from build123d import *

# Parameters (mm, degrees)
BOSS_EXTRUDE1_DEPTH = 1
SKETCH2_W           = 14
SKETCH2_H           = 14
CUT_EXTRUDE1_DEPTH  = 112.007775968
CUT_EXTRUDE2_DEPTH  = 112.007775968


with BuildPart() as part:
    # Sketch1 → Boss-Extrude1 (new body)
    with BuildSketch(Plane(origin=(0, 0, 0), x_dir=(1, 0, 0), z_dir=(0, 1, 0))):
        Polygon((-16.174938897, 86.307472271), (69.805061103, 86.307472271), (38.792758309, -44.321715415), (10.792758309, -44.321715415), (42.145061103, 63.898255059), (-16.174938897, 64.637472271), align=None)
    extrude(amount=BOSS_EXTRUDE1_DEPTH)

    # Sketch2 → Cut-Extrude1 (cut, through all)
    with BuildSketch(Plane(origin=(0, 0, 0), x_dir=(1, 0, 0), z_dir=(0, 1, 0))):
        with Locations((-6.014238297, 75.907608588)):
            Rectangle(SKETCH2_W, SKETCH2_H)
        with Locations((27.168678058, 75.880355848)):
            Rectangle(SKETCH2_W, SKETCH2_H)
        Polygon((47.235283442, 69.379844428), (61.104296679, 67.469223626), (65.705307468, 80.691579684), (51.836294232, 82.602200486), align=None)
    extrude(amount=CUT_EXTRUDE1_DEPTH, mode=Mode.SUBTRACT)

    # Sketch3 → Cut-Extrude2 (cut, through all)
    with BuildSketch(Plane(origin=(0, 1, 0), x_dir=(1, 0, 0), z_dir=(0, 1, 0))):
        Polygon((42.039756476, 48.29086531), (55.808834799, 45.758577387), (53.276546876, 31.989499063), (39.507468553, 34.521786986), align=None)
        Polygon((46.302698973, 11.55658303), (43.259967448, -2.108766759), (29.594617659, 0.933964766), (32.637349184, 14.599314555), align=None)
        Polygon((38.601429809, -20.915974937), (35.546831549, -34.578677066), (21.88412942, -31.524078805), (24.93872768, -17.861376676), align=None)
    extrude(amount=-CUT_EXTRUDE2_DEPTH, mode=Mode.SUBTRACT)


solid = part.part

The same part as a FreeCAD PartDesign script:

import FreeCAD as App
import Part
import Sketcher


def add_polygon(sketch, points):
    """Adds a closed chain of lines whose ends are joined by coincident constraints."""
    first, n = sketch.GeometryCount, len(points)
    for a, b in zip(points, points[1:] + points[:1]):
        sketch.addGeometry(Part.LineSegment(App.Vector(*a, 0), App.Vector(*b, 0)), False)
    for i in range(n):
        sketch.addConstraint(Sketcher.Constraint("Coincident", first + i, 2, first + (i + 1) % n, 1))

doc = App.newDocument("Part")
body = doc.addObject("PartDesign::Body", "Body")

sketch1 = body.newObject("Sketcher::SketchObject", "Sketch")
sketch1.AttachmentSupport = (doc.getObject("XZ_Plane"), [""])
sketch1.MapMode = "FlatFace"
add_polygon(sketch1, [(70, -86), (-16, -86), (-16, -65), (42, -64), (11, 44), (39, 44)])
sketch1.addConstraint(Sketcher.Constraint("Horizontal", 0))
sketch1.addConstraint(Sketcher.Constraint("Vertical", 1))
sketch1.addConstraint(Sketcher.Constraint("Horizontal", 4))
sketch1.addConstraint(Sketcher.Constraint("DistanceX", 4, 1, 4, 2, 28.0))
sketch1.addConstraint(Sketcher.Constraint("DistanceX", 0, 2, 0, 1, 85.98))
sketch1.addConstraint(Sketcher.Constraint("DistanceY", 1, 1, 1, 2, 21.67))
sketch1.addConstraint(Sketcher.Constraint("Distance", 3, 112.67))
sketch1.addConstraint(Sketcher.Constraint("Distance", 5, 134.26))
sketch1.addConstraint(Sketcher.Constraint("DistanceX", 1, 2, 2, 2, 58.32))
sketch1.addConstraint(Sketcher.Constraint("DistanceX", 0, 2, -1, 1, 16.174939))
sketch1.addConstraint(Sketcher.Constraint("DistanceX", -1, 1, 3, 2, 10.792758))
sketch1.addConstraint(Sketcher.Constraint("DistanceY", 0, 2, -1, 1, 86.307472))
pad1 = body.newObject("PartDesign::Pad", "Pad")
pad1.Profile = sketch1
pad1.Length = 1
pad1.Reversed = True

sketch2 = body.newObject("Sketcher::SketchObject", "Sketch001")
sketch2.AttachmentSupport = (doc.getObject("XZ_Plane"), [""])
sketch2.MapMode = "FlatFace"
add_polygon(sketch2, [(-13, -83), (-13, -69), (1, -69), (1, -83)])
add_polygon(sketch2, [(20, -83), (20, -69), (34, -69), (34, -83)])
add_polygon(sketch2, [(47, -69), (61, -67), (66, -81), (52, -83)])
sketch2.addConstraint(Sketcher.Constraint("Vertical", 0))
sketch2.addConstraint(Sketcher.Constraint("Horizontal", 1))
sketch2.addConstraint(Sketcher.Constraint("Vertical", 2))
sketch2.addConstraint(Sketcher.Constraint("Horizontal", 3))
sketch2.addConstraint(Sketcher.Constraint("Vertical", 4))
sketch2.addConstraint(Sketcher.Constraint("Horizontal", 5))
sketch2.addConstraint(Sketcher.Constraint("Vertical", 6))
sketch2.addConstraint(Sketcher.Constraint("Horizontal", 7))
sketch2.addConstraint(Sketcher.Constraint("Parallel", 8, 10))
sketch2.addConstraint(Sketcher.Constraint("Parallel", 9, 11))
sketch2.addConstraint(Sketcher.Constraint("Equal", 3, 5))
sketch2.addConstraint(Sketcher.Constraint("Equal", 7, 0))
sketch2.addConstraint(Sketcher.Constraint("Equal", 2, 4))
sketch2.addConstraint(Sketcher.Constraint("Equal", 8, 9))
sketch2.addConstraint(Sketcher.Constraint("DistanceX", 1, 1, 1, 2, 14.0))
sketch2.addConstraint(Sketcher.Constraint("Distance", 8, 14.0))
sketch2.addConstraint(Sketcher.Constraint("DistanceY", 10, 2, -1, 1, 82.6022))
sketch2.addConstraint(Sketcher.Constraint("DistanceX", 0, 2, -1, 1, 13.014238))
sketch2.addConstraint(Sketcher.Constraint("DistanceY", 0, 2, -1, 1, 68.907609))
sketch2.addConstraint(Sketcher.Constraint("DistanceX", -1, 1, 4, 2, 20.168678))
sketch2.addConstraint(Sketcher.Constraint("DistanceY", 9, 2, -1, 1, 80.69158))
sketch2.addConstraint(Sketcher.Constraint("DistanceX", 5, 2, 8, 2, 26.935619))
sketch2.addConstraint(Sketcher.Constraint("DistanceX", 8, 2, 9, 2, 4.601011))
sketch2.addConstraint(Sketcher.Constraint("DistanceY", 11, 2, 5, 2, 0.499489))
pocket1 = body.newObject("PartDesign::Pocket", "Pocket")
pocket1.Profile = sketch2
pocket1.Type = "ThroughAll"

sketch3 = body.newObject("Sketcher::SketchObject", "Sketch002")
sketch3.AttachmentSupport = (doc.getObject("XZ_Plane"), [""])
sketch3.MapMode = "FlatFace"
sketch3.AttachmentOffset = App.Placement(App.Vector(0, 0, -1), App.Rotation())
add_polygon(sketch3, [(56, -46), (42, -48), (40, -35), (53, -32)])
add_polygon(sketch3, [(43, 2), (46, -12), (33, -15), (30, -1)])
add_polygon(sketch3, [(36, 35), (39, 21), (25, 18), (22, 32)])
sketch3.addConstraint(Sketcher.Constraint("Perpendicular", 0, 1))
sketch3.addConstraint(Sketcher.Constraint("Perpendicular", 1, 2))
sketch3.addConstraint(Sketcher.Constraint("Perpendicular", 2, 3))
sketch3.addConstraint(Sketcher.Constraint("Perpendicular", 4, 5))
sketch3.addConstraint(Sketcher.Constraint("Perpendicular", 5, 6))
sketch3.addConstraint(Sketcher.Constraint("Perpendicular", 6, 7))
sketch3.addConstraint(Sketcher.Constraint("Perpendicular", 8, 9))
sketch3.addConstraint(Sketcher.Constraint("Perpendicular", 9, 10))
sketch3.addConstraint(Sketcher.Constraint("Perpendicular", 10, 11))
sketch3.addConstraint(Sketcher.Constraint("Equal", 0, 1))
sketch3.addConstraint(Sketcher.Constraint("Equal", 3, 4))
sketch3.addConstraint(Sketcher.Constraint("Equal", 4, 5))
sketch3.addConstraint(Sketcher.Constraint("Equal", 7, 8))
sketch3.addConstraint(Sketcher.Constraint("Equal", 8, 9))
sketch3.addConstraint(Sketcher.Constraint("Distance", 0, 14.0))
sketch3.addConstraint(Sketcher.Constraint("DistanceY", 2, 2, -1, 1, 31.989499))
sketch3.addConstraint(Sketcher.Constraint("DistanceX", -1, 1, 4, 2, 46.302699))
sketch3.addConstraint(Sketcher.Constraint("DistanceY", 0, 2, 6, 2, 47.356901))
sketch3.addConstraint(Sketcher.Constraint("DistanceX", 1, 2, 7, 2, 3.752499))
sketch3.addConstraint(Sketcher.Constraint("DistanceY", 9, 2, 8, 2, 3.054598))
sketch3.addConstraint(Sketcher.Constraint("DistanceX", -1, 1, 1, 2, 39.507469))
sketch3.addConstraint(Sketcher.Constraint("DistanceX", -1, 1, 8, 2, 38.60143))
sketch3.addConstraint(Sketcher.Constraint("DistanceY", -1, 1, 10, 2, 31.524079))
sketch3.addConstraint(Sketcher.Constraint("DistanceY", 0, 2, 1, 2, 13.769078))
pocket2 = body.newObject("PartDesign::Pocket", "Pocket001")
pocket2.Profile = sketch3
pocket2.Type = "ThroughAll"
pocket2.Reversed = True

doc.recompute()
